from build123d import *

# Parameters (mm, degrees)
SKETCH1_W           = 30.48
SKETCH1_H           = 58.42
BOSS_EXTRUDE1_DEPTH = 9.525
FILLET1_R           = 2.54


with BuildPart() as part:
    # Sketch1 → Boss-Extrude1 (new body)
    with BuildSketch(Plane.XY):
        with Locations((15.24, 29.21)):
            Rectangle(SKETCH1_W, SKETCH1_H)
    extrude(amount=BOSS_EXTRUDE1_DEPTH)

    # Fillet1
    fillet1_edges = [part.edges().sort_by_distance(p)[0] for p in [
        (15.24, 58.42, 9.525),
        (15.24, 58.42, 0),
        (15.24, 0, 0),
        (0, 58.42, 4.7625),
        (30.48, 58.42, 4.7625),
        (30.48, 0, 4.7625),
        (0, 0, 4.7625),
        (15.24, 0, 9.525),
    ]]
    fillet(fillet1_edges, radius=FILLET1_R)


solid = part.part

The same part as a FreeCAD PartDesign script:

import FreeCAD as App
import Part
import Sketcher

V = App.Vector
Q = App.Units.Quantity


def edges_at(feature, points):
    """Names of the edges that pass closest to the given points."""
    edges = feature.Shape.Edges
    near = lambda p: min(range(len(edges)), key=lambda i: edges[i].distToShape(Part.Vertex(*p))[0])
    return sorted({f"Edge{near(p) + 1}" for p in points})


def add_polygon(sketch, points):
    """Adds a closed chain of lines whose ends are joined by coincident constraints."""
    first, n = sketch.GeometryCount, len(points)
    for a, b in zip(points, points[1:] + points[:1]):
        sketch.addGeometry(Part.LineSegment(App.Vector(*a, 0), App.Vector(*b, 0)), False)
    for i in range(n):
        sketch.addConstraint(Sketcher.Constraint("Coincident", first + i, 2, first + (i + 1) % n, 1))

doc = App.newDocument("Part")
params = doc.addObject("Spreadsheet::Sheet", "Params")
for row, (alias, value) in enumerate([
    ("sketch1_width", "1.2 in"),
    ("sketch1_height", "2.3 in"),
    ("pad1_length", "0.375 in"),
    ("fillet_radius", "0.1 in"),
], start=1):
    params.set(f"A{row}", alias)
    params.set(f"B{row}", "=" + value)
    params.setAlias(f"B{row}", alias)

body = doc.addObject("PartDesign::Body", "Body")

# Sketch on XY plane
sketch1 = doc.addObject("Sketcher::SketchObject", "Sketch")
body.addObject(sketch1)
sketch1.AttachmentSupport = (doc.XY_Plane, [""])
sketch1.MapMode = "FlatFace"
add_polygon(sketch1, [(0, 58.42), (0, 0), (30.48, 0), (30.48, 58.42)])  # lines 0-3
sketch1.addConstraint(Sketcher.Constraint("Vertical", 0))
sketch1.addConstraint(Sketcher.Constraint("Horizontal", 1))
sketch1.addConstraint(Sketcher.Constraint("Vertical", 2))
sketch1.addConstraint(Sketcher.Constraint("Horizontal", 3))
sketch1.addConstraint(Sketcher.Constraint("Coincident", 0, 2, -1, 1))
sketch1.addConstraint(Sketcher.Constraint("DistanceX", 1, 1, 1, 2, Q("1.2 in")))
sketch1.addConstraint(Sketcher.Constraint("DistanceY", 0, 2, 0, 1, Q("2.3 in")))
sketch1.setExpression("Constraints[9]", "Params.sketch1_width")
sketch1.setExpression("Constraints[10]", "Params.sketch1_height")
pad1 = doc.addObject("PartDesign::Pad", "Pad")
body.addObject(pad1)
pad1.Profile = sketch1
pad1.setExpression("Length", "Params.pad1_length")
doc.recompute()

fillet = doc.addObject("PartDesign::Fillet", "Fillet")
body.addObject(fillet)
fillet.Base = (pad1, edges_at(pad1, [
    (15.24, 58.42, 9.525),
    (15.24, 58.42, 0),
    (15.24, 0, 0),
    (0, 58.42, 4.763),
    (30.48, 58.42, 4.763),
    (30.48, 0, 4.763),
    (0, 0, 4.763),
    (15.24, 0, 9.525),
]))
fillet.setExpression("Radius", "Params.fillet_radius")

doc.recompute()
